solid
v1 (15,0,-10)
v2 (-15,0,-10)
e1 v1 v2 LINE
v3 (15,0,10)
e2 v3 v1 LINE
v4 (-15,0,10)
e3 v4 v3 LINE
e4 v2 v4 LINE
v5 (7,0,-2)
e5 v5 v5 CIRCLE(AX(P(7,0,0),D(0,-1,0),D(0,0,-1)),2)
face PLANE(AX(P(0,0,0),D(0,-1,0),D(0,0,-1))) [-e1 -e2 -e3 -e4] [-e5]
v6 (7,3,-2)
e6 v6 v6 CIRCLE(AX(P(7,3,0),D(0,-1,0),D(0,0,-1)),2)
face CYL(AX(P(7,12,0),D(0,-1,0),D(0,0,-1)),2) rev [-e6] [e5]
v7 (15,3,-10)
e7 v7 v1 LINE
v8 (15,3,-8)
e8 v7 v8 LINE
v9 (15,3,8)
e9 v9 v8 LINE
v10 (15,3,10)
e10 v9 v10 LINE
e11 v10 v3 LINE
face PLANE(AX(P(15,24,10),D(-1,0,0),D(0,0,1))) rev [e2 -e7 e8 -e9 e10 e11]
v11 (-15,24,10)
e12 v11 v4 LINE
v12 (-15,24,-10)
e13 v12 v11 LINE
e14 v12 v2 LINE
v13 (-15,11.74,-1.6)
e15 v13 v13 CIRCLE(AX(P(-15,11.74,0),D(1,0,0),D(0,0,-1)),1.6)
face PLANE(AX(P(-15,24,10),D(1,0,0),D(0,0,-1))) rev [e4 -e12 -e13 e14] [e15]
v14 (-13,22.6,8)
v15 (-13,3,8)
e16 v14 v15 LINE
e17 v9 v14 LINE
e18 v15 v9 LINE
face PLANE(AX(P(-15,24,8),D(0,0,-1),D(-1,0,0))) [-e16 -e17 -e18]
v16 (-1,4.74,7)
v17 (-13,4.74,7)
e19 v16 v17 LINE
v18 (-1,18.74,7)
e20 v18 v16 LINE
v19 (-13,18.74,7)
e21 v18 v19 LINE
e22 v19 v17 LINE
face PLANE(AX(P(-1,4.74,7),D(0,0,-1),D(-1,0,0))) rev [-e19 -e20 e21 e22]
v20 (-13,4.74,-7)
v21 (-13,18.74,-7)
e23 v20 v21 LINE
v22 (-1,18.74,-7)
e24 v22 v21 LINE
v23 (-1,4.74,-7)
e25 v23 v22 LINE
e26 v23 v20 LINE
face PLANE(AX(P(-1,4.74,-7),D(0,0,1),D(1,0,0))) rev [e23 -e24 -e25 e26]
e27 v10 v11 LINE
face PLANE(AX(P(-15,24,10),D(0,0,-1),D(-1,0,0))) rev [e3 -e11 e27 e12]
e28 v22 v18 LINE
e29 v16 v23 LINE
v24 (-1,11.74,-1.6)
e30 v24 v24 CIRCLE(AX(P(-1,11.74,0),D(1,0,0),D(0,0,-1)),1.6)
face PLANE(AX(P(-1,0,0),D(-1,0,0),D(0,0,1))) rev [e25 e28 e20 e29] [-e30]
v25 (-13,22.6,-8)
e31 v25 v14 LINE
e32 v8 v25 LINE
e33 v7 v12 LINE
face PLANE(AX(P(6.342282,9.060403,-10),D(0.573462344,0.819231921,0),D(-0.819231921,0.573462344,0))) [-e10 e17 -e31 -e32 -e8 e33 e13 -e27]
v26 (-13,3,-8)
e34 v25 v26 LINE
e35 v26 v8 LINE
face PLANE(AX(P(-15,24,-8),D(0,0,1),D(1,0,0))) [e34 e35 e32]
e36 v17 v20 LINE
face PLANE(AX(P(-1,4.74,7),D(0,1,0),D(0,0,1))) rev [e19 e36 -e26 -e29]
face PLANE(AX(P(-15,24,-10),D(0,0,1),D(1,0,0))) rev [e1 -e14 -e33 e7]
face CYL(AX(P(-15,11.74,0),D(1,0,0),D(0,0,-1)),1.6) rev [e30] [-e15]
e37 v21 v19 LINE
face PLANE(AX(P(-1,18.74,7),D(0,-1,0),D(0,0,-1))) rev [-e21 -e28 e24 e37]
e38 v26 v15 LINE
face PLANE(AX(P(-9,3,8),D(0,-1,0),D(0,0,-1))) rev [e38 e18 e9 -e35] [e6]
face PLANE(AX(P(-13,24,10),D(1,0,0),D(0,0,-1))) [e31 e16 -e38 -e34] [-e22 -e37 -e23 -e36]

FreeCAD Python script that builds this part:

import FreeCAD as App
import Part
import Sketcher

V = App.Vector


def faces_at(feature, points):
    """Names of the faces that lie closest to the given points."""
    faces = feature.Shape.Faces
    near = lambda p: min(range(len(faces)), key=lambda i: faces[i].distToShape(Part.Vertex(*p))[0])
    return sorted({f"Face{near(p) + 1}" for p in points})


def add_polygon(sketch, points):
    """Adds a closed chain of lines whose ends are joined by coincident constraints."""
    first, n = sketch.GeometryCount, len(points)
    for a, b in zip(points, points[1:] + points[:1]):
        sketch.addGeometry(Part.LineSegment(App.Vector(*a, 0), App.Vector(*b, 0)), False)
    for i in range(n):
        sketch.addConstraint(Sketcher.Constraint("Coincident", first + i, 2, first + (i + 1) % n, 1))

doc = App.newDocument("Part")
body = doc.addObject("PartDesign::Body", "Body")

# Sketch on XZ plane
sketch1 = body.newObject("Sketcher::SketchObject", "Sketch")
sketch1.AttachmentSupport = (doc.getObject("XZ_Plane"), [""])
sketch1.MapMode = "FlatFace"
add_polygon(sketch1, [(-15, -10), (-15, 10), (15, 10), (15, -10)])  # lines 0-3
sketch1.addConstraint([
    Sketcher.Constraint("Vertical", 0),
    Sketcher.Constraint("Horizontal", 1),
    Sketcher.Constraint("Vertical", 2),
    Sketcher.Constraint("Horizontal", 3),
    Sketcher.Constraint("Symmetric", 0, 2, 2, 2, -1, 1),
    Sketcher.Constraint("DistanceX", 1, 1, 1, 2, 30.0),
    Sketcher.Constraint("DistanceY", 0, 1, 0, 2, 20.0),
])
pad1 = body.newObject("PartDesign::Pad", "Pad")
pad1.Profile = sketch1
pad1.Length = 24
pad1.Reversed = True

# Sketch on XY plane
sketch2 = body.newObject("Sketcher::SketchObject", "Sketch001")
sketch2.AttachmentSupport = (doc.getObject("XY_Plane"), [""])
sketch2.MapMode = "FlatFace"
sketch2.AttachmentOffset = App.Placement(V(0, 0, 10), App.Rotation())
add_polygon(sketch2, [(-15, 24), (15, 3), (15, 24)])  # lines 0-2
sketch2.addConstraint([
    Sketcher.Constraint("Vertical", 1),
    Sketcher.Constraint("Horizontal", 2),
    Sketcher.Constraint("DistanceX", 2, 2, 2, 1, 30.0),
    Sketcher.Constraint("DistanceY", 1, 1, 1, 2, 21.0),
    Sketcher.Constraint("DistanceX", -1, 1, 0, 2, 15.0),
    Sketcher.Constraint("DistanceY", -1, 1, 0, 2, 3.0),
])
pocket1 = body.newObject("PartDesign::Pocket", "Pocket")
pocket1.Profile = sketch2
pocket1.Type = "ThroughAll"
doc.recompute()

thickness = body.newObject("PartDesign::Thickness", "Thickness")
thickness.Base = (pocket1, faces_at(pocket1, [(0, 13.5, 0)]))
thickness.Value = 2
thickness.Reversed = True
thickness.Join = "Intersection"

# Sketch on YZ plane
sketch3 = body.newObject("Sketcher::SketchObject", "Sketch002")
sketch3.AttachmentSupport = (doc.getObject("YZ_Plane"), [""])
sketch3.MapMode = "FlatFace"
sketch3.AttachmentOffset = App.Placement(V(0, 0, 15), App.Rotation())
add_polygon(sketch3, [(11, 8), (3, 8), (3, -8), (11, -8)])  # lines 0-3
sketch3.addConstraint([
    Sketcher.Constraint("Horizontal", 0),
    Sketcher.Constraint("Vertical", 1),
    Sketcher.Constraint("Horizontal", 2),
    Sketcher.Constraint("Vertical", 3),
    Sketcher.Constraint("DistanceY", 1, 2, 1, 1, 16.0),
    Sketcher.Constraint("DistanceX", -1, 1, 0, 2, 3.0),
    Sketcher.Constraint("DistanceY", -1, 1, 0, 2, 8.0),
    Sketcher.Constraint("DistanceX", 0, 2, 0, 1, 7.775934),
])
pocket2 = body.newObject("PartDesign::Pocket", "Pocket001")
pocket2.Profile = sketch3
pocket2.Length = 24

# Sketch on YZ plane
sketch4 = body.newObject("Sketcher::SketchObject", "Sketch003")
sketch4.AttachmentSupport = (doc.getObject("YZ_Plane"), [""])
sketch4.MapMode = "FlatFace"
sketch4.AttachmentOffset = App.Placement(V(0, 0, 15), App.Rotation())
add_polygon(sketch4, [(3, 8), (0, 8), (0, -8), (3, -8)])  # lines 0-3
sketch4.addConstraint([
    Sketcher.Constraint("Horizontal", 0),
    Sketcher.Constraint("Vertical", 1),
    Sketcher.Constraint("Horizontal", 2),
    Sketcher.Constraint("Vertical", 3),
    Sketcher.Constraint("Symmetric", 0, 2, 1, 2, -1, 1),
    Sketcher.Constraint("DistanceX", 0, 2, 0, 1, 3.0),
    Sketcher.Constraint("DistanceY", 1, 2, 1, 1, 16.0),
])
pad2 = body.newObject("PartDesign::Pad", "Pad001")
pad2.Profile = sketch4
pad2.Type = "UpToFirst"
pad2.Reversed = True

# Sketch on YZ plane
sketch5 = body.newObject("Sketcher::SketchObject", "Sketch004")
sketch5.AttachmentSupport = (doc.getObject("YZ_Plane"), [""])
sketch5.MapMode = "FlatFace"
sketch5.AttachmentOffset = App.Placement(V(0, 0, -13), App.Rotation())
add_polygon(sketch5, [(19, 7), (5, 7), (5, -7), (19, -7)])  # lines 0-3
sketch5.addConstraint([
    Sketcher.Constraint("Horizontal", 0),
    Sketcher.Constraint("Vertical", 1),
    Sketcher.Constraint("Horizontal", 2),
    Sketcher.Constraint("Vertical", 3),
    Sketcher.Constraint("Equal", 2, 1),
    Sketcher.Constraint("DistanceX", 0, 2, 0, 1, 14.0),
    Sketcher.Constraint("DistanceY", -1, 1, 0, 2, 7.0),
    Sketcher.Constraint("DistanceX", -1, 1, 0, 2, 4.74),
])
pad3 = body.newObject("PartDesign::Pad", "Pad002")
pad3.Profile = sketch5
pad3.Length = 12

# Sketch on YZ plane
sketch6 = body.newObject("Sketcher::SketchObject", "Sketch005")
sketch6.AttachmentSupport = (doc.getObject("YZ_Plane"), [""])
sketch6.MapMode = "FlatFace"
sketch6.AttachmentOffset = App.Placement(V(0, 0, -1), App.Rotation())
sketch6.addGeometry(Part.Circle(V(11.7, 0, 0), V(0, 0, 1), 1.6), False)
sketch6.addConstraint([
    Sketcher.Constraint("PointOnObject", 0, 3, -1),
    Sketcher.Constraint("Diameter", 0, 3.2),
    Sketcher.Constraint("DistanceX", -1, 1, 0, 3, 11.74),
])
pocket3 = body.newObject("PartDesign::Pocket", "Pocket002")
pocket3.Profile = sketch6
pocket3.Type = "ThroughAll"

# Sketch on XZ plane
sketch7 = body.newObject("Sketcher::SketchObject", "Sketch006")
sketch7.AttachmentSupport = (doc.getObject("XZ_Plane"), [""])
sketch7.MapMode = "FlatFace"
sketch7.addGeometry(Part.Circle(V(7, 0, 0), V(0, 0, 1), 2), False)
sketch7.addConstraint([
    Sketcher.Constraint("PointOnObject", 0, 3, -1),
    Sketcher.Constraint("Diameter", 0, 4.0),
    Sketcher.Constraint("DistanceX", -1, 1, 0, 3, 7.0),
])
pocket4 = body.newObject("PartDesign::Pocket", "Pocket003")
pocket4.Profile = sketch7
pocket4.Length = 12

doc.recompute()
